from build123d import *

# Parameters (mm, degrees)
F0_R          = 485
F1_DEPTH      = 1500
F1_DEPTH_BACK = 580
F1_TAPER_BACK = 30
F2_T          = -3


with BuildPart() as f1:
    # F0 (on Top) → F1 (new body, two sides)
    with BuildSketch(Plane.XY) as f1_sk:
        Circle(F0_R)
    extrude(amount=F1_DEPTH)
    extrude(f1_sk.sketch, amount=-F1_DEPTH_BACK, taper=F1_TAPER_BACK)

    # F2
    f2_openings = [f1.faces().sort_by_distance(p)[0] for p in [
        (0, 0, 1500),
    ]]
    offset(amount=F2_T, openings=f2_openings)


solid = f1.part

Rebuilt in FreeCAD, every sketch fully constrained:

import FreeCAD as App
import Part
import Sketcher


def faces_at(feature, points):
    """Names of the faces that lie closest to the given points."""
    faces = feature.Shape.Faces
    near = lambda p: min(range(len(faces)), key=lambda i: faces[i].distToShape(Part.Vertex(*p))[0])
    return sorted({f"Face{near(p) + 1}" for p in points})

doc = App.newDocument("Part")
params = doc.addObject("Spreadsheet::Sheet", "Params")
for row, (alias, value) in enumerate([
    ("sketch1_diameter", "970 mm"),
    ("pad1_length", "1500 mm"),
    ("pad2_length", "580 mm"),
    ("pad2_taper", "-30 deg"),
    ("thickness_wall", "3 mm"),
], start=1):
    params.set(f"A{row}", alias)
    params.set(f"B{row}", "=" + value)
    params.setAlias(f"B{row}", alias)

body = doc.addObject("PartDesign::Body", "Body")

sketch1 = doc.addObject("Sketcher::SketchObject", "Sketch")
body.addObject(sketch1)
sketch1.AttachmentSupport = (doc.XY_Plane, [""])
sketch1.MapMode = "FlatFace"
sketch1.addGeometry(Part.Circle(App.Vector(0, 0, 0), App.Vector(0, 0, 1), 485), False)
sketch1.addConstraint([
    Sketcher.Constraint("Coincident", 0, 3, -1, 1),
    Sketcher.Constraint("Diameter", 0, 970.0),
])
sketch1.setExpression("Constraints[1]", "Params.sketch1_diameter")
pad1 = doc.addObject("PartDesign::Pad", "Pad")
body.addObject(pad1)
pad1.Profile = sketch1
pad1.setExpression("Length", "Params.pad1_length")
pad2 = doc.addObject("PartDesign::Pad", "Pad001")
body.addObject(pad2)
pad2.Profile = sketch1
pad2.setExpression("Length", "Params.pad2_length")
pad2.Reversed = True
pad2.setExpression("TaperAngle", "Params.pad2_taper")
doc.recompute()

thickness = doc.addObject("PartDesign::Thickness", "Thickness")
body.addObject(thickness)
thickness.Base = (pad2, faces_at(pad2, [(0, 0, 1500)]))
thickness.setExpression("Value", "Params.thickness_wall")
thickness.Reversed = True
thickness.Join = "Arc"

doc.recompute()
